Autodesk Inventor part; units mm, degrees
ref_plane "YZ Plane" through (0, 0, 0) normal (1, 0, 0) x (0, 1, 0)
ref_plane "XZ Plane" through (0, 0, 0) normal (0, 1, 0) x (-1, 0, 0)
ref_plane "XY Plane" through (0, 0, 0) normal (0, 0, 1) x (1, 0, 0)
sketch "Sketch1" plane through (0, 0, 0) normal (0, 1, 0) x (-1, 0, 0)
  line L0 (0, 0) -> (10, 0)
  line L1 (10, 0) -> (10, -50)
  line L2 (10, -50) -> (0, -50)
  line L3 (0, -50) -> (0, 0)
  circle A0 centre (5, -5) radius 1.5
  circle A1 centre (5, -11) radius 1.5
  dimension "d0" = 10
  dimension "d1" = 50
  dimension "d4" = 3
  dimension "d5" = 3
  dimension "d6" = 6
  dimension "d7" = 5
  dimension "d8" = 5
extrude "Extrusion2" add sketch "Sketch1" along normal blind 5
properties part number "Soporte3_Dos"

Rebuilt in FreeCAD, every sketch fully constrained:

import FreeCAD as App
import Part
import Sketcher
from FreeCAD import Vector


def add_polygon(sketch, points):
    """Adds a closed chain of lines whose ends are joined by coincident constraints."""
    first, n = sketch.GeometryCount, len(points)
    for a, b in zip(points, points[1:] + points[:1]):
        sketch.addGeometry(Part.LineSegment(App.Vector(*a, 0), App.Vector(*b, 0)), False)
    for i in range(n):
        sketch.addConstraint(Sketcher.Constraint("Coincident", first + i, 2, first + (i + 1) % n, 1))

doc = App.newDocument("Part")
params = doc.addObject("Spreadsheet::Sheet", "Params")
for row, (alias, value) in enumerate([
    ("sketch1_diameter", "3 mm"),
    ("sketch1_width", "10 mm"),
    ("sketch1_height", "50 mm"),
    ("pad1_length", "5 mm"),
], start=1):
    params.set(f"A{row}", alias)
    params.set(f"B{row}", "=" + value)
    params.setAlias(f"B{row}", alias)

body = doc.addObject("PartDesign::Body", "Body")

# Sketch on XZ plane
sketch1 = body.newObject("Sketcher::SketchObject", "Sketch")
sketch1.AttachmentSupport = (doc.getObject("XZ_Plane"), [""])
sketch1.MapMode = "FlatFace"
add_polygon(sketch1, [(-10, 0), (0, 0), (0, -50), (-10, -50)])  # lines 0-3
sketch1.addGeometry(Part.Circle(Vector(-5, -11, 0), Vector(0, 0, 1), 1.5), False)  # 4
sketch1.addGeometry(Part.Circle(Vector(-5, -5, 0), Vector(0, 0, 1), 1.5), False)  # 5
sketch1.addConstraint([
    Sketcher.Constraint("Horizontal", 0),
    Sketcher.Constraint("Vertical", 1),
    Sketcher.Constraint("Horizontal", 2),
    Sketcher.Constraint("Vertical", 3),
    Sketcher.Constraint("Coincident", 0, 2, -1, 1),
    Sketcher.Constraint("Equal", 4, 5),
    Sketcher.Constraint("Vertical", 4, 3, 5, 3),
    Sketcher.Constraint("Diameter", 4, 3.0),
    Sketcher.Constraint("DistanceX", 0, 1, 0, 2, 10.0),
    Sketcher.Constraint("DistanceY", 1, 2, 1, 1, 50.0),
    Sketcher.Constraint("DistanceX", 4, 3, -1, 1, 5.0),
    Sketcher.Constraint("DistanceY", 5, 3, -1, 1, 5.0),
    Sketcher.Constraint("DistanceY", 4, 3, 5, 3, 6.0),
])
sketch1.setExpression("Constraints[11]", "Params.sketch1_diameter")
sketch1.setExpression("Constraints[12]", "Params.sketch1_width")
sketch1.setExpression("Constraints[13]", "Params.sketch1_height")
pad1 = body.newObject("PartDesign::Pad", "Pad")
pad1.Profile = sketch1
pad1.setExpression("Length", "Params.pad1_length")
pad1.Reversed = True

doc.recompute()
